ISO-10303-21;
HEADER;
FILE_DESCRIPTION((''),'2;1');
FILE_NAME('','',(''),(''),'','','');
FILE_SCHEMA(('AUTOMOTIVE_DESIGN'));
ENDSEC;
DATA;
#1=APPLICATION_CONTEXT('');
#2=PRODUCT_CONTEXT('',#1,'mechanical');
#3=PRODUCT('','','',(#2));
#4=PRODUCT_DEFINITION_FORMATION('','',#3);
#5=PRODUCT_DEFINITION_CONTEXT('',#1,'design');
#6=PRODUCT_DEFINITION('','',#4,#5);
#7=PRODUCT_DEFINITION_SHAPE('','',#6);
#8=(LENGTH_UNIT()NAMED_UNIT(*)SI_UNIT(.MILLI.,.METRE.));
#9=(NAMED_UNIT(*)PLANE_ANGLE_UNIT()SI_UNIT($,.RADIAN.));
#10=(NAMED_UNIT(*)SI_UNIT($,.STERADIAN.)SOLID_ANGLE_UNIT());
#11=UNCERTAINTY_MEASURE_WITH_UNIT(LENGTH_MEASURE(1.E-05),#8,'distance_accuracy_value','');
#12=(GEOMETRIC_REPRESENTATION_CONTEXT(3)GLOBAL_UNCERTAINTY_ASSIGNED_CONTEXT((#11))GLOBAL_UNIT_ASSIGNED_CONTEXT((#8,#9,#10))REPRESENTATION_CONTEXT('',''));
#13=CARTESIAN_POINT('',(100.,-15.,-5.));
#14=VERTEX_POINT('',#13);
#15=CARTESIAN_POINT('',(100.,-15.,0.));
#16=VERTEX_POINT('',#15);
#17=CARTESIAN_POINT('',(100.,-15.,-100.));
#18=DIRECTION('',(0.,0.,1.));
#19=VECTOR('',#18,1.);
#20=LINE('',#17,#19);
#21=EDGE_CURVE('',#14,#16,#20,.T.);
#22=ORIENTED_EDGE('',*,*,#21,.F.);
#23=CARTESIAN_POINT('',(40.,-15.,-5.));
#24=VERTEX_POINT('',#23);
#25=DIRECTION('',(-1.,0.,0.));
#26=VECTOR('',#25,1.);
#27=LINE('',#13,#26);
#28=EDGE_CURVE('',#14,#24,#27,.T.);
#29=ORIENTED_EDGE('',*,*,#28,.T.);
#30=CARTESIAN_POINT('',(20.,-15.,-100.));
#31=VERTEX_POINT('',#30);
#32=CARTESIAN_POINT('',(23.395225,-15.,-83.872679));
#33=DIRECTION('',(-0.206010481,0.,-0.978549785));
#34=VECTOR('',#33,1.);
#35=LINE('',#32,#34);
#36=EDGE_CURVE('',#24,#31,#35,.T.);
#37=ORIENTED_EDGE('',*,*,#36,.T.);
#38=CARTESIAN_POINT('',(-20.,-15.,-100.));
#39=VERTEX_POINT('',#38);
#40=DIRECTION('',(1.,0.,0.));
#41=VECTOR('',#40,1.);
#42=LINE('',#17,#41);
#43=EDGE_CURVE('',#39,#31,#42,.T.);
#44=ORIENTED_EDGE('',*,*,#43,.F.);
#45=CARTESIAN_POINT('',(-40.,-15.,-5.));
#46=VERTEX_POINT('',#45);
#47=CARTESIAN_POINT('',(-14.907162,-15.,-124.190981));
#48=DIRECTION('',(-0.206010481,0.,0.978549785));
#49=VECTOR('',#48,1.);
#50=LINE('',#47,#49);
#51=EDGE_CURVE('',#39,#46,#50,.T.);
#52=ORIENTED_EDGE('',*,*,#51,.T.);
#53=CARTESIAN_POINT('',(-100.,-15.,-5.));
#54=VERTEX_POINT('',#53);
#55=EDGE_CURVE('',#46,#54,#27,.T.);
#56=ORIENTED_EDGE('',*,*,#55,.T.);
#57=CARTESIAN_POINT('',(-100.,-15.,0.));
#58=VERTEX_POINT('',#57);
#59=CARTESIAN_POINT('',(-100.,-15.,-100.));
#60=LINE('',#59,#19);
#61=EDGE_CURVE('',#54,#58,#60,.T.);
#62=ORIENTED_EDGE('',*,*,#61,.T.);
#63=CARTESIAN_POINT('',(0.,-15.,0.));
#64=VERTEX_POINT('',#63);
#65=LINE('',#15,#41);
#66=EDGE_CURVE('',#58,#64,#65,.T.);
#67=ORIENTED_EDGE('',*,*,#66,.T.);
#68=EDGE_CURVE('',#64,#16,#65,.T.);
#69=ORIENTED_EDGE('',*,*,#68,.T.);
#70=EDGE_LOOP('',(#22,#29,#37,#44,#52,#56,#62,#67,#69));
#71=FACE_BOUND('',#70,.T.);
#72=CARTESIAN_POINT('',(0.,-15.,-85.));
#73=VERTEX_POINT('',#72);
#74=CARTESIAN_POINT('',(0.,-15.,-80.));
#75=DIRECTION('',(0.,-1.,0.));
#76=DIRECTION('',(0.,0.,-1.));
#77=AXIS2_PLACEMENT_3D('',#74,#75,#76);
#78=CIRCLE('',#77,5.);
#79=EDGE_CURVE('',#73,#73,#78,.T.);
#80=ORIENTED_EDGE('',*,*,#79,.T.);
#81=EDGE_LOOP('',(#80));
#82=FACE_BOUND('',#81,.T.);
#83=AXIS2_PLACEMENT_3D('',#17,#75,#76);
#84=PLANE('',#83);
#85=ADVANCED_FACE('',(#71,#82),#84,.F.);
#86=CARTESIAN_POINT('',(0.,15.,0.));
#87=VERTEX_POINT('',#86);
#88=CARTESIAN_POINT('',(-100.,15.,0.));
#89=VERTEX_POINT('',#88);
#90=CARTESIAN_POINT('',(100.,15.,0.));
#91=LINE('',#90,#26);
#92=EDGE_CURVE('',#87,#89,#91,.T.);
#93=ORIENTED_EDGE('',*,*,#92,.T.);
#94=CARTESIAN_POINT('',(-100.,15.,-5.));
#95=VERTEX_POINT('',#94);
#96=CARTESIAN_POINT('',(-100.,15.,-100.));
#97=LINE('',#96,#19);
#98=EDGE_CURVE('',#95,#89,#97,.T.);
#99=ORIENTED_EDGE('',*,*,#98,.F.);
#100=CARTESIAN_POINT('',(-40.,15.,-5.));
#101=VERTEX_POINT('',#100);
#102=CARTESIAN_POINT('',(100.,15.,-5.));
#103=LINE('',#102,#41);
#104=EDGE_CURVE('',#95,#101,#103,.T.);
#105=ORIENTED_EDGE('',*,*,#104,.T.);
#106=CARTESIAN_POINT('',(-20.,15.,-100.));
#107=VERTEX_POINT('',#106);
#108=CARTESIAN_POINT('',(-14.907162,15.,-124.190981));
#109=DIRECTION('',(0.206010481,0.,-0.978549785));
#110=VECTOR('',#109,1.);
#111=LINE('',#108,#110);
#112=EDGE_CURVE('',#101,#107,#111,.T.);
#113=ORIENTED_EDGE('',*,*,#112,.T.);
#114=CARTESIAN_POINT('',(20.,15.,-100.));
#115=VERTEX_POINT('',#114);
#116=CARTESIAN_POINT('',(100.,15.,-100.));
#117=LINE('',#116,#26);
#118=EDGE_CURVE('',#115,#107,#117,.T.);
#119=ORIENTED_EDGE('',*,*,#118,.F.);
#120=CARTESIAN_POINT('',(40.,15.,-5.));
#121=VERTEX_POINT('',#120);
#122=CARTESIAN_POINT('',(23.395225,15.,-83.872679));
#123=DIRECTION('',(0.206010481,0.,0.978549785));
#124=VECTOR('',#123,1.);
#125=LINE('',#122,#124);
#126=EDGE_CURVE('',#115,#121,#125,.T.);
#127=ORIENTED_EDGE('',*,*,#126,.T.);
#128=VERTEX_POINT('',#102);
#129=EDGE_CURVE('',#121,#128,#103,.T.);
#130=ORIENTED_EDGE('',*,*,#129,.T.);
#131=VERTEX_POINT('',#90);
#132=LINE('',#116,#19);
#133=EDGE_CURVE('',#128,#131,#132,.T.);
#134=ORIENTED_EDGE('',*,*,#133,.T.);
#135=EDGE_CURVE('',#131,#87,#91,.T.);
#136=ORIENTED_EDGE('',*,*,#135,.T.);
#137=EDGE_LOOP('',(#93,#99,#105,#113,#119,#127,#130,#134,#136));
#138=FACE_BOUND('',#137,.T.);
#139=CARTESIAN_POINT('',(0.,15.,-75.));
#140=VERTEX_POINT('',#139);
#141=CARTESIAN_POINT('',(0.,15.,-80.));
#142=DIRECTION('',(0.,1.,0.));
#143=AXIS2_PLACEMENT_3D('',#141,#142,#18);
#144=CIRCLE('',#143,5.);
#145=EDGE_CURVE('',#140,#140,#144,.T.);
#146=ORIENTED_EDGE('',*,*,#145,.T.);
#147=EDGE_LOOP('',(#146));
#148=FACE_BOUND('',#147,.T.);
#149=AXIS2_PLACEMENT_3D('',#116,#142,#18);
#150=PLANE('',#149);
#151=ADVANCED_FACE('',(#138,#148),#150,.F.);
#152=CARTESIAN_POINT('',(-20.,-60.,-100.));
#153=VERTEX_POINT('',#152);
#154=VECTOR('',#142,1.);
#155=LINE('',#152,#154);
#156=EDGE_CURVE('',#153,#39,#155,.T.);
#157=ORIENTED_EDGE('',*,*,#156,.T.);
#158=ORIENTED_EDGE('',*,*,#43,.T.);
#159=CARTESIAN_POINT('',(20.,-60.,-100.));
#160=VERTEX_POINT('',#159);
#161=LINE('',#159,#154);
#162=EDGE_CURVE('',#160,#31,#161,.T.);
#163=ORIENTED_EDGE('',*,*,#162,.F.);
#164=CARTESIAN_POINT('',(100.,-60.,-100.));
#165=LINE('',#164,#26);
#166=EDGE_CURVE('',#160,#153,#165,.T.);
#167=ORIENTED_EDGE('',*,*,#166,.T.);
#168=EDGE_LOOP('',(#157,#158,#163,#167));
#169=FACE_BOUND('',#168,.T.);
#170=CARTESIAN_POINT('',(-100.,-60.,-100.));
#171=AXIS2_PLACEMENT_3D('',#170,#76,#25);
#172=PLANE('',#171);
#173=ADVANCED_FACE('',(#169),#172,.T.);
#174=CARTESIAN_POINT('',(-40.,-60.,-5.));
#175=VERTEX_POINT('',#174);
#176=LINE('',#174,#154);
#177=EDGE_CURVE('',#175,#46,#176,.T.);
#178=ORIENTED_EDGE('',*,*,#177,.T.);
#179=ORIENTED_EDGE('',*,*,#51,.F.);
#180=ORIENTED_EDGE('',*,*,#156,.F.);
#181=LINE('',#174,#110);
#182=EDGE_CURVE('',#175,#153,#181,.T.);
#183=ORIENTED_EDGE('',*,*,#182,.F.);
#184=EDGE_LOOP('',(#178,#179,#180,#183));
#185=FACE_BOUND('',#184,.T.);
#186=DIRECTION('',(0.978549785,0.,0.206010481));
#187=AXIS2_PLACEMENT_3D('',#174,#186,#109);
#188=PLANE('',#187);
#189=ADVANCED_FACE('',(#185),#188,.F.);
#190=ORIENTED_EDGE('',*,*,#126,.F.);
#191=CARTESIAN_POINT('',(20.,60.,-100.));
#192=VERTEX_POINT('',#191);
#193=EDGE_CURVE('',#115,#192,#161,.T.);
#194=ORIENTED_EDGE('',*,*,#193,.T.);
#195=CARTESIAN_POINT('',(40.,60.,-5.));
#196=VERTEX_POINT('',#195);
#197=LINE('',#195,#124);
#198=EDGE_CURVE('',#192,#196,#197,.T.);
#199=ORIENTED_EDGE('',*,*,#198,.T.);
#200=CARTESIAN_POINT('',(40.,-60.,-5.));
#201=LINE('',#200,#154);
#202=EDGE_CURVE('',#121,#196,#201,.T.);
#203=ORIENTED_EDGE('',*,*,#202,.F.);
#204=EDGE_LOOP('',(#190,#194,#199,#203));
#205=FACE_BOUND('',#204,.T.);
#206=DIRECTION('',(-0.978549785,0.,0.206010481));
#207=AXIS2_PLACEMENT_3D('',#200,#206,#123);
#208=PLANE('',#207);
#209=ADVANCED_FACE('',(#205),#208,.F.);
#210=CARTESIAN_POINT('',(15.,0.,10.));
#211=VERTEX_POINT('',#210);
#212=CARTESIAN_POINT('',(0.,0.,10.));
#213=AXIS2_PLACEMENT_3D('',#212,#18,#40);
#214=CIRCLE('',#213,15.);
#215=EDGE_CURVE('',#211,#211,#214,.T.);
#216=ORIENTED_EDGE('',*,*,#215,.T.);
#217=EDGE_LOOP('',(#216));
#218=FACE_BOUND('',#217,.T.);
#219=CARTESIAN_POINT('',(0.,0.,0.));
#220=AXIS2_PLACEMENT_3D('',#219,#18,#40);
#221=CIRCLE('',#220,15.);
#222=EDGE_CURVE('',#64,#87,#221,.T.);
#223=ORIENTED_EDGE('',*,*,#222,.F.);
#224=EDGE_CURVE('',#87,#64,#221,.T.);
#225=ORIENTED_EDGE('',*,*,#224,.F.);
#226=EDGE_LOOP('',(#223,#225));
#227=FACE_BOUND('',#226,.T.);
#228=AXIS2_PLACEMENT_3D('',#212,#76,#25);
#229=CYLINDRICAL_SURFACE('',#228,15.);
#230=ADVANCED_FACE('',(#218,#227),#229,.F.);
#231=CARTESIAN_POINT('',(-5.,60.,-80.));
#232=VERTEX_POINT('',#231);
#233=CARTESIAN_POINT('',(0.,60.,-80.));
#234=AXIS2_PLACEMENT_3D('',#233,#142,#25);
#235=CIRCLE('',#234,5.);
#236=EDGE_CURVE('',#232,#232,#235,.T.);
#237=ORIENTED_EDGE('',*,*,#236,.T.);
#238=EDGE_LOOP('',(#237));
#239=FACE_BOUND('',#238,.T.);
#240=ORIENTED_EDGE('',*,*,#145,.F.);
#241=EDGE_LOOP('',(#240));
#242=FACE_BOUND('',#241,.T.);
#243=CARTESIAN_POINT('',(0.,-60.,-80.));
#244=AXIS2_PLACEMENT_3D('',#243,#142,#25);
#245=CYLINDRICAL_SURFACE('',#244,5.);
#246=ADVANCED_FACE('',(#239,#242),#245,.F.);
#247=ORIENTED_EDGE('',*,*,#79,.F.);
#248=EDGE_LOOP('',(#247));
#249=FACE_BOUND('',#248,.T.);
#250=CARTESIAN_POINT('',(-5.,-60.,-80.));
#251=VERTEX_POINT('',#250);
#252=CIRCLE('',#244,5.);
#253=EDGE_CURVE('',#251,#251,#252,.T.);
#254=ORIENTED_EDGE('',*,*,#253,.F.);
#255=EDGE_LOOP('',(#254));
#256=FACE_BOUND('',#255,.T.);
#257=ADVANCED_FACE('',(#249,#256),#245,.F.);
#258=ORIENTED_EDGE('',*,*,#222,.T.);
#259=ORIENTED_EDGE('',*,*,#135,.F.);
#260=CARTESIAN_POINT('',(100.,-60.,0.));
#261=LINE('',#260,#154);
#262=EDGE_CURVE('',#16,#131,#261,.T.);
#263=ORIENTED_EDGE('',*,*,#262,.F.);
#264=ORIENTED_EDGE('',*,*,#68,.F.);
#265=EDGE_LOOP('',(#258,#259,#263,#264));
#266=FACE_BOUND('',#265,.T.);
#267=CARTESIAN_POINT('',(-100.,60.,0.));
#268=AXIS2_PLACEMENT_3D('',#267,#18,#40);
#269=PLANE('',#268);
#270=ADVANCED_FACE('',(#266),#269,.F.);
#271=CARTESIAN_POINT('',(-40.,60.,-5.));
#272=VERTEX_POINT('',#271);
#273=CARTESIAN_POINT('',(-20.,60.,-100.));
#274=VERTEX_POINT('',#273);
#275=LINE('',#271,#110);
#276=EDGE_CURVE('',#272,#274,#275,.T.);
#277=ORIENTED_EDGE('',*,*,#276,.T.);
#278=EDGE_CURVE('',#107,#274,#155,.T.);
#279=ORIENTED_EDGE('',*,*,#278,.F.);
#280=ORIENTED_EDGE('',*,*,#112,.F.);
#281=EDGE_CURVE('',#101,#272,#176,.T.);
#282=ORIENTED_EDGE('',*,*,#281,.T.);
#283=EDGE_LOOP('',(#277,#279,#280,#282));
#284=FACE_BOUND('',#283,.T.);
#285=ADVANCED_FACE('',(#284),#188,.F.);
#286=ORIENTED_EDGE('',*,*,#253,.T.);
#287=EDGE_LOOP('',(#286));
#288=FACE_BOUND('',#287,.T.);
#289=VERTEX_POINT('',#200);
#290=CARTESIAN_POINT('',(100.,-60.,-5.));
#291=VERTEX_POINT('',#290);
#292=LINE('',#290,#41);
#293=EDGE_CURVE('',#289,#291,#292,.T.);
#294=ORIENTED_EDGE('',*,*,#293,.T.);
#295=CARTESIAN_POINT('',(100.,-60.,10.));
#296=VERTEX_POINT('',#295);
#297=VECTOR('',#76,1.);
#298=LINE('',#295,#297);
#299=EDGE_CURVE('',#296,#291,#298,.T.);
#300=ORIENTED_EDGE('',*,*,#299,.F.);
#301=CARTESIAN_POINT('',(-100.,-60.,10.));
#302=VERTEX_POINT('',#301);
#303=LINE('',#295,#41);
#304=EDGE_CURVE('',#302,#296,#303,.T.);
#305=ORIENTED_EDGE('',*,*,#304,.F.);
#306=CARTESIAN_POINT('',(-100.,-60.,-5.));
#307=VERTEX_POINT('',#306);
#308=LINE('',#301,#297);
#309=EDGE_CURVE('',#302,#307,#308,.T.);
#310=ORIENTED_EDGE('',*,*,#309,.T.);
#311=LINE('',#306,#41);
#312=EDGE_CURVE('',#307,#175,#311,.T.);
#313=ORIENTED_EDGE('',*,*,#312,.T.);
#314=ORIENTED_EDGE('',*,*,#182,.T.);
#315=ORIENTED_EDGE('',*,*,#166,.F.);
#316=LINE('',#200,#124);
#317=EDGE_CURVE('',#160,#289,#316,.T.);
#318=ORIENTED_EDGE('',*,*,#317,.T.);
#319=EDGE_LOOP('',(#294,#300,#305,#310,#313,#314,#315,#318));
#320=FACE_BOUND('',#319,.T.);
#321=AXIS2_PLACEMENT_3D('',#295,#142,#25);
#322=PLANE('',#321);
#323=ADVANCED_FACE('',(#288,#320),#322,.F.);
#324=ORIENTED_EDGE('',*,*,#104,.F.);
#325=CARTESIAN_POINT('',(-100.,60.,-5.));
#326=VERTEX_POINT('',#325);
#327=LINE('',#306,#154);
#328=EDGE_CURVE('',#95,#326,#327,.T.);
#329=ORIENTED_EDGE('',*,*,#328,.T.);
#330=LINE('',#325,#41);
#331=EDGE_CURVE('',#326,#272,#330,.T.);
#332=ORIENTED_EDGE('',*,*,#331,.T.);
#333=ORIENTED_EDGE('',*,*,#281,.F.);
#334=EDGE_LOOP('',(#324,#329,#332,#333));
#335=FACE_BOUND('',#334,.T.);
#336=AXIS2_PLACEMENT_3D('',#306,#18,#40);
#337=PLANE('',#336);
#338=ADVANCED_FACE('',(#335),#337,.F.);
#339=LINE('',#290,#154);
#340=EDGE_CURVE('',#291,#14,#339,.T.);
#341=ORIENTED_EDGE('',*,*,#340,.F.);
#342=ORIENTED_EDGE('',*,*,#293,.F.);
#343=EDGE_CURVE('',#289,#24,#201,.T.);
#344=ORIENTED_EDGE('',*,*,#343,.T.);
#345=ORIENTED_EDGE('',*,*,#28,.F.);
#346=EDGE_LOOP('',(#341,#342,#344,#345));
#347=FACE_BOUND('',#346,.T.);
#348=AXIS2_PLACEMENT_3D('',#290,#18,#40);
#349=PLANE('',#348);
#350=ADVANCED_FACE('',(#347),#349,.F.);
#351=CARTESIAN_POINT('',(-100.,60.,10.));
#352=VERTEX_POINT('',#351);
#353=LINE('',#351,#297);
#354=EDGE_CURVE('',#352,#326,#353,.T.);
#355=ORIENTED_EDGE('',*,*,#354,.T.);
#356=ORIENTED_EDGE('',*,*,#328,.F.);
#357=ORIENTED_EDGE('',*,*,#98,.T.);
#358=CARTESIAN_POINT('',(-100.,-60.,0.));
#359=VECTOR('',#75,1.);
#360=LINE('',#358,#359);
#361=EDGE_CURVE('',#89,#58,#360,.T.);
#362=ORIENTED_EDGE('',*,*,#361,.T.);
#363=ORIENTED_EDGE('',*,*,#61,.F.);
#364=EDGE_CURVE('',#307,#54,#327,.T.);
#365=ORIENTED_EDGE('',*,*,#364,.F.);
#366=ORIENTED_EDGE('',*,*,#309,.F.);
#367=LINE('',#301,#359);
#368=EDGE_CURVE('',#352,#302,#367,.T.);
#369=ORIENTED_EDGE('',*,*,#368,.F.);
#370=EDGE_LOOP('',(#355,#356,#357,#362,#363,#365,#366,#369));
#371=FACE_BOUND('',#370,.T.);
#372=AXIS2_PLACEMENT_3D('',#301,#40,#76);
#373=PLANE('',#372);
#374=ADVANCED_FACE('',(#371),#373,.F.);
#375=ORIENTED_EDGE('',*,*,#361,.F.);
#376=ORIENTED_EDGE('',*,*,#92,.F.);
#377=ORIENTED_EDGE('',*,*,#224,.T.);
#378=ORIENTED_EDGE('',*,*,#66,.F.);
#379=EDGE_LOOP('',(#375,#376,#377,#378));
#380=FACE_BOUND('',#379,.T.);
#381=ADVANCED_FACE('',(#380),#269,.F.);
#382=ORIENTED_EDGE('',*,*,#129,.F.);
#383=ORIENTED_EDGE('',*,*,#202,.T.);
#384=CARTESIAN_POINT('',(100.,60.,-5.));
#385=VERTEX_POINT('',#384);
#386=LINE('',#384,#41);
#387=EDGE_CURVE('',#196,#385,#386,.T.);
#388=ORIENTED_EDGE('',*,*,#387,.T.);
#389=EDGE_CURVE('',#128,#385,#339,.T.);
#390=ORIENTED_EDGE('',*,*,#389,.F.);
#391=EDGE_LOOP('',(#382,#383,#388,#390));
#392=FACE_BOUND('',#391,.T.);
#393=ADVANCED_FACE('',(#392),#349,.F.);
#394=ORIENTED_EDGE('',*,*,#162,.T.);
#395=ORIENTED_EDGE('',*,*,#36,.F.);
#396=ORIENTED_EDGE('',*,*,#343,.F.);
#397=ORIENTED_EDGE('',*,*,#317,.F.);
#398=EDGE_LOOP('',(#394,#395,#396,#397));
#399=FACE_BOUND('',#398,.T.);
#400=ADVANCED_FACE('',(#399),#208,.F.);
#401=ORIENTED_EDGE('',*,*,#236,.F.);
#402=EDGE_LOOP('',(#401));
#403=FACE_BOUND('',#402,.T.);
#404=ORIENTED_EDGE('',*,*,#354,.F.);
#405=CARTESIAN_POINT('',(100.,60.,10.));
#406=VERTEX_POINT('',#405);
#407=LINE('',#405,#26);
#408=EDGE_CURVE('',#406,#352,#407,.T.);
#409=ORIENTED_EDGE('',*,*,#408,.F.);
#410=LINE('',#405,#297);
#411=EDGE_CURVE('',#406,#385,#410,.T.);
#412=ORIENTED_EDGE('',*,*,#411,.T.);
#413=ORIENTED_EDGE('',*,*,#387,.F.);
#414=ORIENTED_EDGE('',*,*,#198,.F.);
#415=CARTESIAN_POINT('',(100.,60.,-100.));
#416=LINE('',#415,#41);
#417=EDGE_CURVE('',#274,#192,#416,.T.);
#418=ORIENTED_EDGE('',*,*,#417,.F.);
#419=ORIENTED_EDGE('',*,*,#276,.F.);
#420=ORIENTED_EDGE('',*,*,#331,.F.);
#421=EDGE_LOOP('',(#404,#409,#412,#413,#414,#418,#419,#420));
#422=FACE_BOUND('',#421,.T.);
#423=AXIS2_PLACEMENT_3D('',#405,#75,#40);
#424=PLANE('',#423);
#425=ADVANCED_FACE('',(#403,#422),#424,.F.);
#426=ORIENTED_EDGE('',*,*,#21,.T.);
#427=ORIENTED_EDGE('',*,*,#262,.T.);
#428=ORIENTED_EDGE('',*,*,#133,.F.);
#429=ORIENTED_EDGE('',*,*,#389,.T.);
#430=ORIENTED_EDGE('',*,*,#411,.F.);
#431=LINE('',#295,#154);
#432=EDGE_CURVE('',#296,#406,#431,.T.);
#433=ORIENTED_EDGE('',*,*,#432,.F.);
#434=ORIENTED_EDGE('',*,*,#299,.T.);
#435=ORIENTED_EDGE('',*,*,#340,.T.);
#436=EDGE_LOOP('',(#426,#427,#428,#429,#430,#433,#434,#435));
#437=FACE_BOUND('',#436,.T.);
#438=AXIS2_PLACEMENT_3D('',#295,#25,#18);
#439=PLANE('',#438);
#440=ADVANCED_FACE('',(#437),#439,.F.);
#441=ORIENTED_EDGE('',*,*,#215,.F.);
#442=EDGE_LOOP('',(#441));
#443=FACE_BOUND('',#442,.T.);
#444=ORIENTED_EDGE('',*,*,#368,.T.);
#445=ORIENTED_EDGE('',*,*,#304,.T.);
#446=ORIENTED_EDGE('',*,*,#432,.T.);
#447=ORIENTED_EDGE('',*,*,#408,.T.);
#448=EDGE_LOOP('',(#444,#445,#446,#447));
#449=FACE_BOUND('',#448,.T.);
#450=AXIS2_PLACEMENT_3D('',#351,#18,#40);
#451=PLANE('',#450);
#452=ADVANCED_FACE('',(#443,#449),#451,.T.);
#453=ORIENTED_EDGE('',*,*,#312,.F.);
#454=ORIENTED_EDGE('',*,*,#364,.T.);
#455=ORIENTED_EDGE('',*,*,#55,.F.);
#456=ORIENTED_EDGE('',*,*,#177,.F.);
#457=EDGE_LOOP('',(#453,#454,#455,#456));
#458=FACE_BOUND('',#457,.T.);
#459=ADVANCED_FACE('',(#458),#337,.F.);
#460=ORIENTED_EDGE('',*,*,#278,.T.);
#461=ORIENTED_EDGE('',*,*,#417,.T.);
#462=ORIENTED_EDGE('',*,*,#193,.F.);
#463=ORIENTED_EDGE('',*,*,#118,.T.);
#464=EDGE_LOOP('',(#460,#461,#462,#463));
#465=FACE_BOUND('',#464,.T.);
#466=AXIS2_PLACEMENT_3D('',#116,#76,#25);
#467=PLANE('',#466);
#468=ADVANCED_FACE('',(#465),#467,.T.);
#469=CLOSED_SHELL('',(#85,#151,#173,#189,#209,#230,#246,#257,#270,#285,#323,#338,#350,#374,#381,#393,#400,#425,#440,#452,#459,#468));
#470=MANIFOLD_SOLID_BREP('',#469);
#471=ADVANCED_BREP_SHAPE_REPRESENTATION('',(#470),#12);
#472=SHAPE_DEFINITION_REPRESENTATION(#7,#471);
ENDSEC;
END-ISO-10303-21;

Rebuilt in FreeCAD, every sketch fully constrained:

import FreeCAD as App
import Part
import Sketcher
from FreeCAD import Vector
Q = App.Units.Quantity


def add_polygon(sketch, points):
    """Adds a closed chain of lines whose ends are joined by coincident constraints."""
    first, n = sketch.GeometryCount, len(points)
    for a, b in zip(points, points[1:] + points[:1]):
        sketch.addGeometry(Part.LineSegment(App.Vector(*a, 0), App.Vector(*b, 0)), False)
    for i in range(n):
        sketch.addConstraint(Sketcher.Constraint("Coincident", first + i, 2, first + (i + 1) % n, 1))

doc = App.newDocument("Part")
body = doc.addObject("PartDesign::Body", "Body")

# Sketch on XY plane
sketch1 = body.newObject("Sketcher::SketchObject", "Sketch")
sketch1.AttachmentSupport = (doc.getObject("XY_Plane"), [""])
sketch1.MapMode = "FlatFace"
add_polygon(sketch1, [(-100, 60), (-100, -60), (100, -60), (100, 60)])  # lines 0-3
sketch1.addGeometry(Part.Circle(Vector(0, 0, 0), Vector(0, 0, 1), 15), False)  # 4
sketch1.addConstraint([
    Sketcher.Constraint("Vertical", 0),
    Sketcher.Constraint("Horizontal", 1),
    Sketcher.Constraint("Vertical", 2),
    Sketcher.Constraint("Horizontal", 3),
    Sketcher.Constraint("Coincident", 4, 3, -1, 1),
    Sketcher.Constraint("Symmetric", 0, 2, 2, 2, -1, 1),
    Sketcher.Constraint("Diameter", 4, Q("30 mm")),
    Sketcher.Constraint("DistanceX", 1, 1, 1, 2, Q("200 mm")),
    Sketcher.Constraint("DistanceY", 0, 2, 0, 1, Q("120 mm")),
])
pad1 = body.newObject("PartDesign::Pad", "Pad")
pad1.Profile = sketch1
pad1.Length = 10

# Sketch on XY plane
sketch2 = body.newObject("Sketcher::SketchObject", "Sketch001")
sketch2.AttachmentSupport = (doc.getObject("XY_Plane"), [""])
sketch2.MapMode = "FlatFace"
add_polygon(sketch2, [(100, 60), (100, 15), (-100, 15), (-100, 60)])  # lines 0-3
add_polygon(sketch2, [(100, -15), (100, -60), (-100, -60), (-100, -15)])  # lines 4-7
sketch2.addConstraint([
    Sketcher.Constraint("Vertical", 0),
    Sketcher.Constraint("Horizontal", 1),
    Sketcher.Constraint("Vertical", 2),
    Sketcher.Constraint("Horizontal", 3),
    Sketcher.Constraint("Vertical", 4),
    Sketcher.Constraint("Horizontal", 5),
    Sketcher.Constraint("Vertical", 6),
    Sketcher.Constraint("Horizontal", 7),
    Sketcher.Constraint("Symmetric", 2, 2, 4, 2, -1, 1),
    Sketcher.Constraint("Symmetric", 0, 2, 6, 2, -1, 1),
    Sketcher.Constraint("Vertical", 3, 2, 4, 2),
    Sketcher.Constraint("DistanceX", 1, 2, 1, 1, Q("200 mm")),
    Sketcher.Constraint("DistanceY", 0, 2, 0, 1, Q("45 mm")),
    Sketcher.Constraint("DistanceY", -1, 1, 0, 2, Q("15 mm")),
])
pad2 = body.newObject("PartDesign::Pad", "Pad001")
pad2.Profile = sketch2
pad2.Length = 100
pad2.Reversed = True

# Sketch on XZ plane
sketch3 = body.newObject("Sketcher::SketchObject", "Sketch002")
sketch3.AttachmentSupport = (doc.getObject("XZ_Plane"), [""])
sketch3.MapMode = "FlatFace"
sketch3.AttachmentOffset = App.Placement(Vector(0, 0, -60), App.Rotation())
sketch3.addGeometry(Part.Circle(Vector(0, -80, 0), Vector(0, 0, 1), 5), False)  # 0
add_polygon(sketch3, [(-100, -100), (-100, -5), (-40, -5), (-20, -100)])  # lines 1-4
add_polygon(sketch3, [(100, -100), (20, -100), (40, -5), (100, -5)])  # lines 5-8
sketch3.addConstraint([
    Sketcher.Constraint("Vertical", 1),
    Sketcher.Constraint("Horizontal", 2),
    Sketcher.Constraint("Horizontal", 4),
    Sketcher.Constraint("Horizontal", 5),
    Sketcher.Constraint("Horizontal", 7),
    Sketcher.Constraint("Vertical", 8),
    Sketcher.Constraint("Symmetric", 3, 2, 5, 2, -2),
    Sketcher.Constraint("Symmetric", 2, 2, 6, 2, -2),
    Sketcher.Constraint("PointOnObject", 0, 3, -2),
    Sketcher.Constraint("Equal", 4, 5),
    Sketcher.Constraint("Diameter", 0, Q("10 mm")),
    Sketcher.Constraint("DistanceX", 2, 1, 2, 2, Q("60 mm")),
    Sketcher.Constraint("DistanceX", 4, 2, 4, 1, Q("80 mm")),
    Sketcher.Constraint("DistanceY", 1, 1, 1, 2, Q("95 mm")),
    Sketcher.Constraint("DistanceY", 0, 3, -1, 1, Q("80 mm")),
    Sketcher.Constraint("DistanceX", 1, 2, -1, 1, Q("100 mm")),
    Sketcher.Constraint("DistanceY", 1, 2, -1, 1, Q("5 mm")),
])
pocket1 = body.newObject("PartDesign::Pocket", "Pocket")
pocket1.Profile = sketch3
pocket1.Type = "ThroughAll"
pocket1.Reversed = True

doc.recompute()
